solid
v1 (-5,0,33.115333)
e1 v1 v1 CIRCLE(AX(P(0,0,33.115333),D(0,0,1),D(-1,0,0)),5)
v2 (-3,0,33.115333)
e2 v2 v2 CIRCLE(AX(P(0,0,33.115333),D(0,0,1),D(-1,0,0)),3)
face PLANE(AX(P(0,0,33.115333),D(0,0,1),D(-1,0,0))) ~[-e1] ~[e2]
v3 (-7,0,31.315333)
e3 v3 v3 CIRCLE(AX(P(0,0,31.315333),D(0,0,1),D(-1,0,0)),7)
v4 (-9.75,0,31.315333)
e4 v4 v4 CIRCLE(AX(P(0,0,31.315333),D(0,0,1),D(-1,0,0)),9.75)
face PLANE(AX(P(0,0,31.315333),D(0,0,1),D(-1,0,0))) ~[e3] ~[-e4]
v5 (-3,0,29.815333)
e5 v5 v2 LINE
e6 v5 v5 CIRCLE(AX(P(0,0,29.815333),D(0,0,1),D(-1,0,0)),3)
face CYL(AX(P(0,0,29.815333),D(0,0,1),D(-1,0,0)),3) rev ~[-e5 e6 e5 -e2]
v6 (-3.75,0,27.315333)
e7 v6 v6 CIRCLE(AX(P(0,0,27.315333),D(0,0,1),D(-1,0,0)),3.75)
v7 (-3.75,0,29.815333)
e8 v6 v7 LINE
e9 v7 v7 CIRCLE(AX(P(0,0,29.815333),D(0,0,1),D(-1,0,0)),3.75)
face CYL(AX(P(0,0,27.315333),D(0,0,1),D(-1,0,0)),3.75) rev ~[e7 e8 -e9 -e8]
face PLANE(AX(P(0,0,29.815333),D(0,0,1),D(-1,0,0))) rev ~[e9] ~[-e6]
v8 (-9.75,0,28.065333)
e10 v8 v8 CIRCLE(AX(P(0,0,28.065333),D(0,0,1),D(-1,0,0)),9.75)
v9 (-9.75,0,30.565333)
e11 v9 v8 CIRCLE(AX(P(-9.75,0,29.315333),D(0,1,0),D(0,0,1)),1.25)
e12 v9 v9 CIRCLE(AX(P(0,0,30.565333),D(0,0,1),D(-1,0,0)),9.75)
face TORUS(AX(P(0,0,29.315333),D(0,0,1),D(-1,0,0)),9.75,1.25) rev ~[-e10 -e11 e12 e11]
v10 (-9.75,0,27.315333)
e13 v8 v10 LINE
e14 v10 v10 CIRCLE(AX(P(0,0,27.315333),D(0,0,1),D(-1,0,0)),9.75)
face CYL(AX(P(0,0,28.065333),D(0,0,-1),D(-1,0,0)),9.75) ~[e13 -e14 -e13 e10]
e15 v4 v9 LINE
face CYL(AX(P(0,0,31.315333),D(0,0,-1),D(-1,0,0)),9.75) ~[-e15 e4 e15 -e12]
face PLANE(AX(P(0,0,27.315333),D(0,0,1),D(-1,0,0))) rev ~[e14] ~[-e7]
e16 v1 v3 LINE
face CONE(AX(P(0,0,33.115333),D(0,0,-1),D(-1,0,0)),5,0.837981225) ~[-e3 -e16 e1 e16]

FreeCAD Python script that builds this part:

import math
import FreeCAD as App
import Part
import Sketcher
Q = App.Units.Quantity

doc = App.newDocument("Part")
params = doc.addObject("Spreadsheet::Sheet", "Params")
for row, (alias, value) in enumerate([
    ("sketch1_width", "6 mm"),
    ("sketch1_width2", "2 mm"),
    ("sketch1_radius", "1.25 mm"),
    ("sketch1_height", "2.5 mm"),
    ("sketch1_height2", "3.3 mm"),
    ("revolution_angle", "360 deg"),
], start=1):
    params.set(f"A{row}", alias)
    params.set(f"B{row}", "=" + value)
    params.setAlias(f"B{row}", alias)

body = doc.addObject("PartDesign::Body", "Body")

# Sketch on XZ plane
sketch1 = body.newObject("Sketcher::SketchObject", "Sketch")
sketch1.AttachmentSupport = (doc.getObject("XZ_Plane"), [""])
sketch1.MapMode = "FlatFace"
sketch1.addGeometry(Part.LineSegment(App.Vector(-9.75, 27.315333, 0), App.Vector(-3.75, 27.315333, 0)), False)
sketch1.addGeometry(Part.LineSegment(App.Vector(-3.75, 27.315333, 0), App.Vector(-3.75, 29.815333, 0)), False)
sketch1.addGeometry(Part.LineSegment(App.Vector(-3.75, 29.815333, 0), App.Vector(-3, 29.815333, 0)), False)
sketch1.addGeometry(Part.LineSegment(App.Vector(-3, 29.815333, 0), App.Vector(-3, 33.115333, 0)), False)
sketch1.addGeometry(Part.LineSegment(App.Vector(-3, 33.115333, 0), App.Vector(-5, 33.115333, 0)), False)
sketch1.addGeometry(Part.LineSegment(App.Vector(-5, 33.115333, 0), App.Vector(-7, 31.315333, 0)), False)
sketch1.addGeometry(Part.LineSegment(App.Vector(-7, 31.315333, 0), App.Vector(-9.75, 31.315333, 0)), False)
sketch1.addGeometry(Part.LineSegment(App.Vector(-9.75, 31.315333, 0), App.Vector(-9.75, 30.565333, 0)), False)
sketch1.addGeometry(Part.ArcOfCircle(Part.Circle(App.Vector(-9.75, 29.315333, 0), App.Vector(0, 0, 1), 1.25), math.radians(-90), math.radians(90)), False)
sketch1.addGeometry(Part.LineSegment(App.Vector(-9.75, 28.065333, 0), App.Vector(-9.75, 27.315333, 0)), False)
sketch1.addConstraint(Sketcher.Constraint("Coincident", 0, 2, 1, 1))
sketch1.addConstraint(Sketcher.Constraint("Coincident", 1, 2, 2, 1))
sketch1.addConstraint(Sketcher.Constraint("Coincident", 2, 2, 3, 1))
sketch1.addConstraint(Sketcher.Constraint("Coincident", 3, 2, 4, 1))
sketch1.addConstraint(Sketcher.Constraint("Coincident", 4, 2, 5, 1))
sketch1.addConstraint(Sketcher.Constraint("Coincident", 5, 2, 6, 1))
sketch1.addConstraint(Sketcher.Constraint("Coincident", 6, 2, 7, 1))
sketch1.addConstraint(Sketcher.Constraint("Coincident", 7, 2, 8, 2))
sketch1.addConstraint(Sketcher.Constraint("Coincident", 8, 1, 9, 1))
sketch1.addConstraint(Sketcher.Constraint("Coincident", 9, 2, 0, 1))
sketch1.addConstraint(Sketcher.Constraint("Horizontal", 0))
sketch1.addConstraint(Sketcher.Constraint("Vertical", 1))
sketch1.addConstraint(Sketcher.Constraint("Horizontal", 2))
sketch1.addConstraint(Sketcher.Constraint("Vertical", 3))
sketch1.addConstraint(Sketcher.Constraint("Horizontal", 4))
sketch1.addConstraint(Sketcher.Constraint("Horizontal", 6))
sketch1.addConstraint(Sketcher.Constraint("Vertical", 7))
sketch1.addConstraint(Sketcher.Constraint("Vertical", 9))
sketch1.addConstraint(Sketcher.Constraint("Vertical", 8, 3, 6, 2))
sketch1.addConstraint(Sketcher.Constraint("Vertical", 7, 2, 8, 1))
sketch1.addConstraint(Sketcher.Constraint("Equal", 2, 7))
sketch1.addConstraint(Sketcher.Constraint("Equal", 7, 9))
sketch1.addConstraint(Sketcher.Constraint("DistanceX", 0, 1, 0, 2, Q("6 mm")))
sketch1.addConstraint(Sketcher.Constraint("DistanceX", 4, 2, 4, 1, Q("2 mm")))
sketch1.addConstraint(Sketcher.Constraint("Radius", 8, Q("1.25 mm")))
sketch1.addConstraint(Sketcher.Constraint("DistanceY", 1, 1, 1, 2, Q("2.5 mm")))
sketch1.addConstraint(Sketcher.Constraint("DistanceY", 3, 1, 3, 2, Q("3.3 mm")))
sketch1.addConstraint(Sketcher.Constraint("DistanceX", 2, 2, -1, 1, Q("3 mm")))
sketch1.addConstraint(Sketcher.Constraint("DistanceX", 5, 2, -1, 1, Q("7 mm")))
sketch1.addConstraint(Sketcher.Constraint("DistanceY", 0, 2, 8, 3, Q("2 mm")))
sketch1.addConstraint(Sketcher.Constraint("DistanceY", -1, 1, 8, 3, Q("29.315333 mm")))
sketch1.setExpression("Constraints[22]", "Params.sketch1_width")
sketch1.setExpression("Constraints[23]", "Params.sketch1_width2")
sketch1.setExpression("Constraints[24]", "Params.sketch1_radius")
sketch1.setExpression("Constraints[25]", "Params.sketch1_height")
sketch1.setExpression("Constraints[26]", "Params.sketch1_height2")
revolution = body.newObject("PartDesign::Revolution", "Revolution")
revolution.Profile = sketch1
revolution.ReferenceAxis = (sketch1, ["V_Axis"])
revolution.setExpression("Angle", "Params.revolution_angle")

doc.recompute()
